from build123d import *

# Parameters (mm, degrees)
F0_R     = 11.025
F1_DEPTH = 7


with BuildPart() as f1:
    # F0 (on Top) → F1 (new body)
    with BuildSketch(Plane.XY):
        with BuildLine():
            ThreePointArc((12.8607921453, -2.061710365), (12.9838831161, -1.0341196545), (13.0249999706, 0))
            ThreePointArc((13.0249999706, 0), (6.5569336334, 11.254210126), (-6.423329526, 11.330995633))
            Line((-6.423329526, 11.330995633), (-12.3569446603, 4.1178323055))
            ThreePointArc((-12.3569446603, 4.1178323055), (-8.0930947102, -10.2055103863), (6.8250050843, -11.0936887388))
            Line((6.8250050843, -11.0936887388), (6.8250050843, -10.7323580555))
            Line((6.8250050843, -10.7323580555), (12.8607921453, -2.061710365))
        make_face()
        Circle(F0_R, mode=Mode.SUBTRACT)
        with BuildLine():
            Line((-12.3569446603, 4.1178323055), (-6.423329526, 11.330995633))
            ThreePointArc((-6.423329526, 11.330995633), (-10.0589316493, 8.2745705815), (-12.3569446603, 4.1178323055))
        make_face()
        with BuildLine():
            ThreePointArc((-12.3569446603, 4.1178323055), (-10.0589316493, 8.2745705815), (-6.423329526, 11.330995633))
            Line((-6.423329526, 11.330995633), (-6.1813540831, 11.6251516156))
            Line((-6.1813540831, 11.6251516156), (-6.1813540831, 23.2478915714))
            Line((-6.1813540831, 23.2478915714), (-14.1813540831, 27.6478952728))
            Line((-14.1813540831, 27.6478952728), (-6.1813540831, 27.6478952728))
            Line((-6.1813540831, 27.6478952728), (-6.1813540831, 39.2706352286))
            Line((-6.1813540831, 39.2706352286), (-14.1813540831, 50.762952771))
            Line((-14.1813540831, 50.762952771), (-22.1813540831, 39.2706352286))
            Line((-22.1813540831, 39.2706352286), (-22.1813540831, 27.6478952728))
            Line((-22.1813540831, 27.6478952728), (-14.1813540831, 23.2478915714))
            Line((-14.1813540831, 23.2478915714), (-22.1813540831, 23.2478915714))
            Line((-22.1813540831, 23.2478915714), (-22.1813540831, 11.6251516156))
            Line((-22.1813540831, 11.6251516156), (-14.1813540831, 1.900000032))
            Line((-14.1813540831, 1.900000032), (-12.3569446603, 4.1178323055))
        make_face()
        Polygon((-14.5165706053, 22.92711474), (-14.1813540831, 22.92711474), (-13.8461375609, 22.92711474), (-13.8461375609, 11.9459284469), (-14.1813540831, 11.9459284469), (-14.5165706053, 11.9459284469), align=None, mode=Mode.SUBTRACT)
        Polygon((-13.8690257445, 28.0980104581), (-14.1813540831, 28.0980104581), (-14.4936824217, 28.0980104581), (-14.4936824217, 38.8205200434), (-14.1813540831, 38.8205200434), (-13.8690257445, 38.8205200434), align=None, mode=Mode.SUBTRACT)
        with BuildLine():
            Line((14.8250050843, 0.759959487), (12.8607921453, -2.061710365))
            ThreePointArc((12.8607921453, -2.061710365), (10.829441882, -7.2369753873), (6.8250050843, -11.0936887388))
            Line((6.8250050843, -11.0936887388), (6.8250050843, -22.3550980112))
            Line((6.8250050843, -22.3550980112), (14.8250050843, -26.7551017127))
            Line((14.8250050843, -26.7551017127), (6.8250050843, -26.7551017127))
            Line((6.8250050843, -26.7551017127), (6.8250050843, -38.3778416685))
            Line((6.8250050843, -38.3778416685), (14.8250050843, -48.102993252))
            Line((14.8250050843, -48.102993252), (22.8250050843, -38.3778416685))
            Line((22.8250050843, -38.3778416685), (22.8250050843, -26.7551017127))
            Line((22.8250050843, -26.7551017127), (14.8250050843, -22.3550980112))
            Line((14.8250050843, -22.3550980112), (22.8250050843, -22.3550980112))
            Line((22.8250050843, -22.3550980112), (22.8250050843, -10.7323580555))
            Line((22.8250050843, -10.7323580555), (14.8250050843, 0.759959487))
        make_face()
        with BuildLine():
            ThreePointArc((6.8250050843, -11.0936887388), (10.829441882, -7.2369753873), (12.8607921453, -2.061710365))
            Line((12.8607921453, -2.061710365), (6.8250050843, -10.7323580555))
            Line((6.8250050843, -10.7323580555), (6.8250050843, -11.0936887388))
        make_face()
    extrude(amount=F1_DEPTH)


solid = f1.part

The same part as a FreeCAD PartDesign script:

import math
import FreeCAD as App
import Part
import Sketcher
Q = App.Units.Quantity

doc = App.newDocument("Part")
body = doc.addObject("PartDesign::Body", "Body")

# Sketch on XY plane
sketch1 = body.newObject("Sketcher::SketchObject", "Sketch")
sketch1.AttachmentSupport = (doc.getObject("XY_Plane"), [""])
sketch1.MapMode = "FlatFace"
sketch1.addGeometry(Part.ArcOfCircle(Part.Circle(App.Vector(0, 0, 0), App.Vector(0, 0, 1), 13.02), math.radians(-9.11), math.radians(0)), False)
sketch1.addGeometry(Part.ArcOfCircle(Part.Circle(App.Vector(0, 0, 0), App.Vector(0, 0, 1), 13.02), math.radians(0), math.radians(120)), False)
sketch1.addGeometry(Part.LineSegment(App.Vector(-6.42, 11.33, 0), App.Vector(-6.18, 11.63, 0)), False)
sketch1.addGeometry(Part.LineSegment(App.Vector(-6.18, 11.63, 0), App.Vector(-6.18, 23.25, 0)), False)
sketch1.addGeometry(Part.LineSegment(App.Vector(-6.18, 23.25, 0), App.Vector(-14.18, 27.65, 0)), False)
sketch1.addGeometry(Part.LineSegment(App.Vector(-14.18, 27.65, 0), App.Vector(-6.18, 27.65, 0)), False)
sketch1.addGeometry(Part.LineSegment(App.Vector(-6.18, 27.65, 0), App.Vector(-6.18, 39.27, 0)), False)
sketch1.addGeometry(Part.LineSegment(App.Vector(-6.18, 39.27, 0), App.Vector(-14.18, 50.76, 0)), False)
sketch1.addGeometry(Part.LineSegment(App.Vector(-14.18, 50.76, 0), App.Vector(-22.18, 39.27, 0)), False)
sketch1.addGeometry(Part.LineSegment(App.Vector(-22.18, 39.27, 0), App.Vector(-22.18, 27.65, 0)), False)
sketch1.addGeometry(Part.LineSegment(App.Vector(-22.18, 27.65, 0), App.Vector(-14.18, 23.25, 0)), False)
sketch1.addGeometry(Part.LineSegment(App.Vector(-14.18, 23.25, 0), App.Vector(-22.18, 23.25, 0)), False)
sketch1.addGeometry(Part.LineSegment(App.Vector(-22.18, 23.25, 0), App.Vector(-22.18, 11.63, 0)), False)
sketch1.addGeometry(Part.LineSegment(App.Vector(-22.18, 11.63, 0), App.Vector(-14.18, 1.9, 0)), False)
sketch1.addGeometry(Part.LineSegment(App.Vector(-14.18, 1.9, 0), App.Vector(-12.36, 4.12, 0)), False)
sketch1.addGeometry(Part.ArcOfCircle(Part.Circle(App.Vector(0, 0, 0), App.Vector(0, 0, 1), 13.02), math.radians(162), math.radians(302)), False)
sketch1.addGeometry(Part.LineSegment(App.Vector(6.83, -11.09, 0), App.Vector(6.83, -22.36, 0)), False)
sketch1.addGeometry(Part.LineSegment(App.Vector(6.83, -22.36, 0), App.Vector(14.83, -26.76, 0)), False)
sketch1.addGeometry(Part.LineSegment(App.Vector(14.83, -26.76, 0), App.Vector(6.83, -26.76, 0)), False)
sketch1.addGeometry(Part.LineSegment(App.Vector(6.83, -26.76, 0), App.Vector(6.83, -38.38, 0)), False)
sketch1.addGeometry(Part.LineSegment(App.Vector(6.83, -38.38, 0), App.Vector(14.83, -48.1, 0)), False)
sketch1.addGeometry(Part.LineSegment(App.Vector(14.83, -48.1, 0), App.Vector(22.83, -38.38, 0)), False)
sketch1.addGeometry(Part.LineSegment(App.Vector(22.83, -38.38, 0), App.Vector(22.83, -26.76, 0)), False)
sketch1.addGeometry(Part.LineSegment(App.Vector(22.83, -26.76, 0), App.Vector(14.83, -22.36, 0)), False)
sketch1.addGeometry(Part.LineSegment(App.Vector(14.83, -22.36, 0), App.Vector(22.83, -22.36, 0)), False)
sketch1.addGeometry(Part.LineSegment(App.Vector(22.83, -22.36, 0), App.Vector(22.83, -10.73, 0)), False)
sketch1.addGeometry(Part.LineSegment(App.Vector(22.83, -10.73, 0), App.Vector(14.83, 0.76, 0)), False)
sketch1.addGeometry(Part.LineSegment(App.Vector(14.83, 0.76, 0), App.Vector(12.86, -2.06, 0)), False)
sketch1.addGeometry(Part.Circle(App.Vector(0, 0, 0), App.Vector(0, 0, 1), 11.03), False)
sketch1.addGeometry(Part.LineSegment(App.Vector(-14.52, 11.95, 0), App.Vector(-14.52, 22.93, 0)), False)
sketch1.addGeometry(Part.LineSegment(App.Vector(-14.52, 22.93, 0), App.Vector(-13.85, 22.93, 0)), False)
sketch1.addGeometry(Part.LineSegment(App.Vector(-13.85, 22.93, 0), App.Vector(-13.85, 11.95, 0)), False)
sketch1.addGeometry(Part.LineSegment(App.Vector(-13.85, 11.95, 0), App.Vector(-14.52, 11.95, 0)), False)
sketch1.addGeometry(Part.LineSegment(App.Vector(-13.87, 38.82, 0), App.Vector(-13.87, 28.1, 0)), False)
sketch1.addGeometry(Part.LineSegment(App.Vector(-13.87, 28.1, 0), App.Vector(-14.49, 28.1, 0)), False)
sketch1.addGeometry(Part.LineSegment(App.Vector(-14.49, 28.1, 0), App.Vector(-14.49, 38.82, 0)), False)
sketch1.addGeometry(Part.LineSegment(App.Vector(-14.49, 38.82, 0), App.Vector(-13.87, 38.82, 0)), False)
sketch1.addConstraint(Sketcher.Constraint("Tangent", 0, 2, 1, 1))
sketch1.addConstraint(Sketcher.Constraint("Coincident", 1, 2, 2, 1))
sketch1.addConstraint(Sketcher.Constraint("Coincident", 2, 2, 3, 1))
sketch1.addConstraint(Sketcher.Constraint("Coincident", 3, 2, 4, 1))
sketch1.addConstraint(Sketcher.Constraint("Coincident", 4, 2, 5, 1))
sketch1.addConstraint(Sketcher.Constraint("Coincident", 5, 2, 6, 1))
sketch1.addConstraint(Sketcher.Constraint("Coincident", 6, 2, 7, 1))
sketch1.addConstraint(Sketcher.Constraint("Coincident", 7, 2, 8, 1))
sketch1.addConstraint(Sketcher.Constraint("Coincident", 8, 2, 9, 1))
sketch1.addConstraint(Sketcher.Constraint("Coincident", 9, 2, 10, 1))
sketch1.addConstraint(Sketcher.Constraint("Coincident", 10, 2, 11, 1))
sketch1.addConstraint(Sketcher.Constraint("Coincident", 11, 2, 12, 1))
sketch1.addConstraint(Sketcher.Constraint("Coincident", 12, 2, 13, 1))
sketch1.addConstraint(Sketcher.Constraint("Coincident", 13, 2, 14, 1))
sketch1.addConstraint(Sketcher.Constraint("Coincident", 14, 2, 15, 1))
sketch1.addConstraint(Sketcher.Constraint("Coincident", 15, 2, 16, 1))
sketch1.addConstraint(Sketcher.Constraint("Coincident", 16, 2, 17, 1))
sketch1.addConstraint(Sketcher.Constraint("Coincident", 17, 2, 18, 1))
sketch1.addConstraint(Sketcher.Constraint("Coincident", 18, 2, 19, 1))
sketch1.addConstraint(Sketcher.Constraint("Coincident", 19, 2, 20, 1))
sketch1.addConstraint(Sketcher.Constraint("Coincident", 20, 2, 21, 1))
sketch1.addConstraint(Sketcher.Constraint("Coincident", 21, 2, 22, 1))
sketch1.addConstraint(Sketcher.Constraint("Coincident", 22, 2, 23, 1))
sketch1.addConstraint(Sketcher.Constraint("Coincident", 23, 2, 24, 1))
sketch1.addConstraint(Sketcher.Constraint("Coincident", 24, 2, 25, 1))
sketch1.addConstraint(Sketcher.Constraint("Coincident", 25, 2, 26, 1))
sketch1.addConstraint(Sketcher.Constraint("Coincident", 26, 2, 27, 1))
sketch1.addConstraint(Sketcher.Constraint("Coincident", 27, 2, 0, 1))
sketch1.addConstraint(Sketcher.Constraint("Coincident", 29, 2, 30, 1))
sketch1.addConstraint(Sketcher.Constraint("Coincident", 30, 2, 31, 1))
sketch1.addConstraint(Sketcher.Constraint("Coincident", 31, 2, 32, 1))
sketch1.addConstraint(Sketcher.Constraint("Coincident", 32, 2, 29, 1))
sketch1.addConstraint(Sketcher.Constraint("Coincident", 33, 2, 34, 1))
sketch1.addConstraint(Sketcher.Constraint("Coincident", 34, 2, 35, 1))
sketch1.addConstraint(Sketcher.Constraint("Coincident", 35, 2, 36, 1))
sketch1.addConstraint(Sketcher.Constraint("Coincident", 36, 2, 33, 1))
sketch1.addConstraint(Sketcher.Constraint("Vertical", 3))
sketch1.addConstraint(Sketcher.Constraint("Horizontal", 5))
sketch1.addConstraint(Sketcher.Constraint("Vertical", 6))
sketch1.addConstraint(Sketcher.Constraint("Vertical", 9))
sketch1.addConstraint(Sketcher.Constraint("Horizontal", 11))
sketch1.addConstraint(Sketcher.Constraint("Vertical", 12))
sketch1.addConstraint(Sketcher.Constraint("Vertical", 16))
sketch1.addConstraint(Sketcher.Constraint("Horizontal", 18))
sketch1.addConstraint(Sketcher.Constraint("Vertical", 19))
sketch1.addConstraint(Sketcher.Constraint("Vertical", 22))
sketch1.addConstraint(Sketcher.Constraint("Horizontal", 24))
sketch1.addConstraint(Sketcher.Constraint("Vertical", 25))
sketch1.addConstraint(Sketcher.Constraint("Vertical", 29))
sketch1.addConstraint(Sketcher.Constraint("Horizontal", 30))
sketch1.addConstraint(Sketcher.Constraint("Vertical", 31))
sketch1.addConstraint(Sketcher.Constraint("Horizontal", 32))
sketch1.addConstraint(Sketcher.Constraint("Vertical", 33))
sketch1.addConstraint(Sketcher.Constraint("Horizontal", 34))
sketch1.addConstraint(Sketcher.Constraint("Vertical", 35))
sketch1.addConstraint(Sketcher.Constraint("Horizontal", 36))
sketch1.addConstraint(Sketcher.Constraint("Coincident", 0, 3, -1, 1))
sketch1.addConstraint(Sketcher.Constraint("Coincident", 15, 3, -1, 1))
sketch1.addConstraint(Sketcher.Constraint("Coincident", 28, 3, -1, 1))
sketch1.addConstraint(Sketcher.Constraint("Equal", 0, 1))
sketch1.addConstraint(Sketcher.Constraint("Equal", 1, 15))
sketch1.addConstraint(Sketcher.Constraint("PointOnObject", 0, 2, -1))
sketch1.addConstraint(Sketcher.Constraint("Parallel", 4, 10))
sketch1.addConstraint(Sketcher.Constraint("Parallel", 2, 14))
sketch1.addConstraint(Sketcher.Constraint("Parallel", 10, 17))
sketch1.addConstraint(Sketcher.Constraint("Parallel", 13, 20))
sketch1.addConstraint(Sketcher.Constraint("Parallel", 14, 21))
sketch1.addConstraint(Sketcher.Constraint("Parallel", 17, 23))
sketch1.addConstraint(Sketcher.Constraint("Parallel", 7, 26))
sketch1.addConstraint(Sketcher.Constraint("Parallel", 8, 27))
sketch1.addConstraint(Sketcher.Constraint("Horizontal", 6, 2, 8, 2))
sketch1.addConstraint(Sketcher.Constraint("Horizontal", 5, 2, 9, 2))
sketch1.addConstraint(Sketcher.Constraint("Horizontal", 3, 2, 10, 2))
sketch1.addConstraint(Sketcher.Constraint("Horizontal", 2, 2, 12, 2))
sketch1.addConstraint(Sketcher.Constraint("Horizontal", 19, 2, 21, 2))
sketch1.addConstraint(Sketcher.Constraint("Horizontal", 18, 2, 22, 2))
sketch1.addConstraint(Sketcher.Constraint("Horizontal", 16, 2, 23, 2))
sketch1.addConstraint(Sketcher.Constraint("Vertical", 3, 2, 5, 2))
sketch1.addConstraint(Sketcher.Constraint("Vertical", 4, 2, 7, 2))
sketch1.addConstraint(Sketcher.Constraint("Vertical", 7, 2, 10, 2))
sketch1.addConstraint(Sketcher.Constraint("Vertical", 9, 2, 11, 2))
sketch1.addConstraint(Sketcher.Constraint("Vertical", 10, 2, 13, 2))
sketch1.addConstraint(Sketcher.Constraint("Vertical", 16, 2, 18, 2))
sketch1.addConstraint(Sketcher.Constraint("Vertical", 17, 2, 20, 2))
sketch1.addConstraint(Sketcher.Constraint("Vertical", 20, 2, 23, 2))
sketch1.addConstraint(Sketcher.Constraint("Vertical", 22, 2, 24, 2))
sketch1.addConstraint(Sketcher.Constraint("Vertical", 23, 2, 26, 2))
sketch1.addConstraint(Sketcher.Constraint("Equal", 11, 18))
sketch1.addConstraint(Sketcher.Constraint("Equal", 3, 6))
sketch1.addConstraint(Sketcher.Constraint("Equal", 12, 19))
sketch1.addConstraint(Sketcher.Constraint("Equal", 22, 25))
sketch1.addConstraint(Sketcher.Constraint("Diameter", 28, Q("22.05 mm")))
sketch1.addConstraint(Sketcher.Constraint("DistanceX", 5, 1, 5, 2, Q("8 mm")))
sketch1.addConstraint(Sketcher.Constraint("Radius", 0, Q("13.025 mm")))
sketch1.addConstraint(Sketcher.Constraint("DistanceY", -1, 1, 13, 2, Q("1.9 mm")))
sketch1.addConstraint(Sketcher.Constraint("Distance", 13, Q("12.592798 mm")))
sketch1.addConstraint(Sketcher.Constraint("DistanceY", 3, 1, 3, 2, Q("11.62274 mm")))
sketch1.addConstraint(Sketcher.Constraint("DistanceY", 16, 2, 16, 1, Q("11.261409 mm")))
sketch1.addConstraint(Sketcher.Constraint("DistanceY", 33, 2, 33, 1, Q("10.72251 mm")))
sketch1.addConstraint(Sketcher.Constraint("DistanceY", 16, 2, -1, 1, Q("22.355098 mm")))
sketch1.addConstraint(Sketcher.Constraint("DistanceY", 17, 2, -1, 1, Q("26.755102 mm")))
sketch1.addConstraint(Sketcher.Constraint("DistanceY", 1, 2, 4, 2, Q("16.3169 mm")))
sketch1.addConstraint(Sketcher.Constraint("DistanceY", 2, 2, 7, 2, Q("39.137801 mm")))
sketch1.addConstraint(Sketcher.Constraint("DistanceX", 30, 1, 30, 2, Q("0.670433 mm")))
sketch1.addConstraint(Sketcher.Constraint("DistanceX", 34, 2, 34, 1, Q("0.624657 mm")))
sketch1.addConstraint(Sketcher.Constraint("DistanceY", 29, 1, 29, 2, Q("10.981186 mm")))
sketch1.addConstraint(Sketcher.Constraint("DistanceX", 29, 2, -1, 1, Q("14.516571 mm")))
sketch1.addConstraint(Sketcher.Constraint("DistanceY", -1, 1, 31, 2, Q("11.945928 mm")))
sketch1.addConstraint(Sketcher.Constraint("DistanceY", -1, 1, 33, 2, Q("28.09801 mm")))
sketch1.addConstraint(Sketcher.Constraint("DistanceX", 4, 2, 33, 2, Q("0.312328 mm")))
pad1 = body.newObject("PartDesign::Pad", "Pad")
pad1.Profile = sketch1
pad1.Length = 7

doc.recompute()
